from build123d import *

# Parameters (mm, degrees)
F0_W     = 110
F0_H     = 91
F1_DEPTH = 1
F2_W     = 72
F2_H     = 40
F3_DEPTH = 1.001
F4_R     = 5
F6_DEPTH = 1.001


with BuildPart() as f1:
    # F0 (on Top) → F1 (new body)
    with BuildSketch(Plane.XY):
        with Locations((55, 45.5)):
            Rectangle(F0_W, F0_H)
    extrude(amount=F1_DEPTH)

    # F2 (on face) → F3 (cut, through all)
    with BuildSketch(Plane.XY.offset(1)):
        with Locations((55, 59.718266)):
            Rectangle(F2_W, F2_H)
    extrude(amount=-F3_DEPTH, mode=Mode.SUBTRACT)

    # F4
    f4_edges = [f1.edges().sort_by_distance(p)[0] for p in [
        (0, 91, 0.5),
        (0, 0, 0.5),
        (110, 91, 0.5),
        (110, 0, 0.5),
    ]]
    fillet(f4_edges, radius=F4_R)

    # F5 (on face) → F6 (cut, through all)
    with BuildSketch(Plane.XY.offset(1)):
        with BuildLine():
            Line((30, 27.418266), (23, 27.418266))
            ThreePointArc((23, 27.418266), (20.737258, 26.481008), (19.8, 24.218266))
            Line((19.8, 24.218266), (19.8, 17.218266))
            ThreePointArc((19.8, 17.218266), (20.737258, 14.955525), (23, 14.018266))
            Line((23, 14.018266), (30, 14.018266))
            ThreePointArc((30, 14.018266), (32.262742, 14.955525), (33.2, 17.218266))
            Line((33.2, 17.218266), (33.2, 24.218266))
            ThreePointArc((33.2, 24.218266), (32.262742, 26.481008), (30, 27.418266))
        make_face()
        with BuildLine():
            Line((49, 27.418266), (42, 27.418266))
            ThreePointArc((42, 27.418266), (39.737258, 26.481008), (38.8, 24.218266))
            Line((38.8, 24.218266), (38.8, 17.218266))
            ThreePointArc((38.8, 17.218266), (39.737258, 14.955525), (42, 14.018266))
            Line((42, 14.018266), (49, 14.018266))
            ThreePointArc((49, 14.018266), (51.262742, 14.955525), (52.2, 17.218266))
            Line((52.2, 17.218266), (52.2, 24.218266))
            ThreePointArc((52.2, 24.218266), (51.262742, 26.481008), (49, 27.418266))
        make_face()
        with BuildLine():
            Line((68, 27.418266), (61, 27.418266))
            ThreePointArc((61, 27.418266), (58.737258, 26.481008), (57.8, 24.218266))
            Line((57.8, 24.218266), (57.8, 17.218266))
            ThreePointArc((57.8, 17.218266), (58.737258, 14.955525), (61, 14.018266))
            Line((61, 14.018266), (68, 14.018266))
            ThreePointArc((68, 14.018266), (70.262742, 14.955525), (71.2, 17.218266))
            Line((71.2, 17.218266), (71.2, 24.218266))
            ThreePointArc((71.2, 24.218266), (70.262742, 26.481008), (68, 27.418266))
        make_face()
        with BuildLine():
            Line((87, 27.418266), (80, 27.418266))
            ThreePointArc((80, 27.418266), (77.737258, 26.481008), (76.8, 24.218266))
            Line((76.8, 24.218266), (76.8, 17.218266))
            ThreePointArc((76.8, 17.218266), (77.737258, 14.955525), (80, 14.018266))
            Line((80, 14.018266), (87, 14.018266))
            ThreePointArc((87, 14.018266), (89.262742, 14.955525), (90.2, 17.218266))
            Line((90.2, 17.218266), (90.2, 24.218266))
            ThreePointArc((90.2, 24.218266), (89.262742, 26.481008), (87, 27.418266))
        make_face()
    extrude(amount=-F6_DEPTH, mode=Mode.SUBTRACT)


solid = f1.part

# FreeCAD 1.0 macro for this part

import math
import FreeCAD as App
import Part
import Sketcher


def edges_at(feature, points):
    """Names of the edges that pass closest to the given points."""
    edges = feature.Shape.Edges
    near = lambda p: min(range(len(edges)), key=lambda i: edges[i].distToShape(Part.Vertex(*p))[0])
    return sorted({f"Edge{near(p) + 1}" for p in points})

doc = App.newDocument("Part")
body = doc.addObject("PartDesign::Body", "Body")

sketch1 = body.newObject("Sketcher::SketchObject", "Sketch")
sketch1.AttachmentSupport = (doc.getObject("XY_Plane"), [""])
sketch1.MapMode = "FlatFace"
sketch1.addGeometry(Part.LineSegment(App.Vector(0, 91, 0), App.Vector(0, 0, 0)), False)
sketch1.addGeometry(Part.LineSegment(App.Vector(0, 0, 0), App.Vector(110, 0, 0)), False)
sketch1.addGeometry(Part.LineSegment(App.Vector(110, 0, 0), App.Vector(110, 91, 0)), False)
sketch1.addGeometry(Part.LineSegment(App.Vector(110, 91, 0), App.Vector(0, 91, 0)), False)
sketch1.addConstraint(Sketcher.Constraint("Coincident", 0, 2, 1, 1))
sketch1.addConstraint(Sketcher.Constraint("Coincident", 1, 2, 2, 1))
sketch1.addConstraint(Sketcher.Constraint("Coincident", 2, 2, 3, 1))
sketch1.addConstraint(Sketcher.Constraint("Coincident", 3, 2, 0, 1))
sketch1.addConstraint(Sketcher.Constraint("Vertical", 0))
sketch1.addConstraint(Sketcher.Constraint("Horizontal", 1))
sketch1.addConstraint(Sketcher.Constraint("Vertical", 2))
sketch1.addConstraint(Sketcher.Constraint("Horizontal", 3))
sketch1.addConstraint(Sketcher.Constraint("Coincident", 0, 2, -1, 1))
sketch1.addConstraint(Sketcher.Constraint("DistanceX", 1, 1, 1, 2, 110.0))
sketch1.addConstraint(Sketcher.Constraint("DistanceY", 0, 2, 0, 1, 91.0))
pad1 = body.newObject("PartDesign::Pad", "Pad")
pad1.Profile = sketch1
pad1.Length = 1

sketch2 = body.newObject("Sketcher::SketchObject", "Sketch001")
sketch2.AttachmentSupport = (doc.getObject("XY_Plane"), [""])
sketch2.MapMode = "FlatFace"
sketch2.AttachmentOffset = App.Placement(App.Vector(0, 0, 1), App.Rotation())
sketch2.addGeometry(Part.LineSegment(App.Vector(19, 80, 0), App.Vector(19, 40, 0)), False)
sketch2.addGeometry(Part.LineSegment(App.Vector(19, 40, 0), App.Vector(91, 40, 0)), False)
sketch2.addGeometry(Part.LineSegment(App.Vector(91, 40, 0), App.Vector(91, 80, 0)), False)
sketch2.addGeometry(Part.LineSegment(App.Vector(91, 80, 0), App.Vector(19, 80, 0)), False)
sketch2.addConstraint(Sketcher.Constraint("Coincident", 0, 2, 1, 1))
sketch2.addConstraint(Sketcher.Constraint("Coincident", 1, 2, 2, 1))
sketch2.addConstraint(Sketcher.Constraint("Coincident", 2, 2, 3, 1))
sketch2.addConstraint(Sketcher.Constraint("Coincident", 3, 2, 0, 1))
sketch2.addConstraint(Sketcher.Constraint("Vertical", 0))
sketch2.addConstraint(Sketcher.Constraint("Horizontal", 1))
sketch2.addConstraint(Sketcher.Constraint("Vertical", 2))
sketch2.addConstraint(Sketcher.Constraint("Horizontal", 3))
sketch2.addConstraint(Sketcher.Constraint("DistanceX", 1, 1, 1, 2, 72.0))
sketch2.addConstraint(Sketcher.Constraint("DistanceY", 0, 2, 0, 1, 40.0))
sketch2.addConstraint(Sketcher.Constraint("DistanceX", -1, 1, 0, 2, 19.0))
sketch2.addConstraint(Sketcher.Constraint("DistanceY", -1, 1, 0, 2, 39.718266))
pocket1 = body.newObject("PartDesign::Pocket", "Pocket")
pocket1.Profile = sketch2
pocket1.Type = "ThroughAll"
doc.recompute()

fillet = body.newObject("PartDesign::Fillet", "Fillet")
fillet.Base = (pocket1, edges_at(pocket1, [
    (0, 91, 0.5),
    (0, 0, 0.5),
    (110, 91, 0.5),
    (110, 0, 0.5),
]))
fillet.Radius = 5

sketch3 = body.newObject("Sketcher::SketchObject", "Sketch002")
sketch3.AttachmentSupport = (doc.getObject("XY_Plane"), [""])
sketch3.MapMode = "FlatFace"
sketch3.AttachmentOffset = App.Placement(App.Vector(0, 0, 1), App.Rotation())
sketch3.addGeometry(Part.LineSegment(App.Vector(30, 27.4, 0), App.Vector(23, 27.4, 0)), False)
sketch3.addGeometry(Part.ArcOfCircle(Part.Circle(App.Vector(23, 24.2, 0), App.Vector(0, 0, 1), 3.2), math.radians(90), math.radians(180)), False)
sketch3.addGeometry(Part.LineSegment(App.Vector(19.8, 24.2, 0), App.Vector(19.8, 17.2, 0)), False)
sketch3.addGeometry(Part.ArcOfCircle(Part.Circle(App.Vector(23, 17.2, 0), App.Vector(0, 0, 1), 3.2), math.radians(-180), math.radians(-90)), False)
sketch3.addGeometry(Part.LineSegment(App.Vector(23, 14, 0), App.Vector(30, 14, 0)), False)
sketch3.addGeometry(Part.ArcOfCircle(Part.Circle(App.Vector(30, 17.2, 0), App.Vector(0, 0, 1), 3.2), math.radians(-90), math.radians(0)), False)
sketch3.addGeometry(Part.LineSegment(App.Vector(33.2, 17.2, 0), App.Vector(33.2, 24.2, 0)), False)
sketch3.addGeometry(Part.ArcOfCircle(Part.Circle(App.Vector(30, 24.2, 0), App.Vector(0, 0, 1), 3.2), math.radians(0), math.radians(90)), False)
sketch3.addGeometry(Part.LineSegment(App.Vector(49, 27.4, 0), App.Vector(42, 27.4, 0)), False)
sketch3.addGeometry(Part.ArcOfCircle(Part.Circle(App.Vector(42, 24.2, 0), App.Vector(0, 0, 1), 3.2), math.radians(90), math.radians(180)), False)
sketch3.addGeometry(Part.LineSegment(App.Vector(38.8, 24.2, 0), App.Vector(38.8, 17.2, 0)), False)
sketch3.addGeometry(Part.ArcOfCircle(Part.Circle(App.Vector(42, 17.2, 0), App.Vector(0, 0, 1), 3.2), math.radians(-180), math.radians(-90)), False)
sketch3.addGeometry(Part.LineSegment(App.Vector(42, 14, 0), App.Vector(49, 14, 0)), False)
sketch3.addGeometry(Part.ArcOfCircle(Part.Circle(App.Vector(49, 17.2, 0), App.Vector(0, 0, 1), 3.2), math.radians(-90), math.radians(0)), False)
sketch3.addGeometry(Part.LineSegment(App.Vector(52.2, 17.2, 0), App.Vector(52.2, 24.2, 0)), False)
sketch3.addGeometry(Part.ArcOfCircle(Part.Circle(App.Vector(49, 24.2, 0), App.Vector(0, 0, 1), 3.2), math.radians(0), math.radians(90)), False)
sketch3.addGeometry(Part.LineSegment(App.Vector(68, 27.4, 0), App.Vector(61, 27.4, 0)), False)
sketch3.addGeometry(Part.ArcOfCircle(Part.Circle(App.Vector(61, 24.2, 0), App.Vector(0, 0, 1), 3.2), math.radians(90), math.radians(180)), False)
sketch3.addGeometry(Part.LineSegment(App.Vector(57.8, 24.2, 0), App.Vector(57.8, 17.2, 0)), False)
sketch3.addGeometry(Part.ArcOfCircle(Part.Circle(App.Vector(61, 17.2, 0), App.Vector(0, 0, 1), 3.2), math.radians(-180), math.radians(-90)), False)
sketch3.addGeometry(Part.LineSegment(App.Vector(61, 14, 0), App.Vector(68, 14, 0)), False)
sketch3.addGeometry(Part.ArcOfCircle(Part.Circle(App.Vector(68, 17.2, 0), App.Vector(0, 0, 1), 3.2), math.radians(-90), math.radians(0)), False)
sketch3.addGeometry(Part.LineSegment(App.Vector(71.2, 17.2, 0), App.Vector(71.2, 24.2, 0)), False)
sketch3.addGeometry(Part.ArcOfCircle(Part.Circle(App.Vector(68, 24.2, 0), App.Vector(0, 0, 1), 3.2), math.radians(0), math.radians(90)), False)
sketch3.addGeometry(Part.LineSegment(App.Vector(87, 27.4, 0), App.Vector(80, 27.4, 0)), False)
sketch3.addGeometry(Part.ArcOfCircle(Part.Circle(App.Vector(80, 24.2, 0), App.Vector(0, 0, 1), 3.2), math.radians(90), math.radians(180)), False)
sketch3.addGeometry(Part.LineSegment(App.Vector(76.8, 24.2, 0), App.Vector(76.8, 17.2, 0)), False)
sketch3.addGeometry(Part.ArcOfCircle(Part.Circle(App.Vector(80, 17.2, 0), App.Vector(0, 0, 1), 3.2), math.radians(-180), math.radians(-90)), False)
sketch3.addGeometry(Part.LineSegment(App.Vector(80, 14, 0), App.Vector(87, 14, 0)), False)
sketch3.addGeometry(Part.ArcOfCircle(Part.Circle(App.Vector(87, 17.2, 0), App.Vector(0, 0, 1), 3.2), math.radians(-90), math.radians(0)), False)
sketch3.addGeometry(Part.LineSegment(App.Vector(90.2, 17.2, 0), App.Vector(90.2, 24.2, 0)), False)
sketch3.addGeometry(Part.ArcOfCircle(Part.Circle(App.Vector(87, 24.2, 0), App.Vector(0, 0, 1), 3.2), math.radians(0), math.radians(90)), False)
sketch3.addConstraint(Sketcher.Constraint("Tangent", 0, 2, 1, 1))
sketch3.addConstraint(Sketcher.Constraint("Tangent", 1, 2, 2, 1))
sketch3.addConstraint(Sketcher.Constraint("Tangent", 2, 2, 3, 1))
sketch3.addConstraint(Sketcher.Constraint("Tangent", 3, 2, 4, 1))
sketch3.addConstraint(Sketcher.Constraint("Tangent", 4, 2, 5, 1))
sketch3.addConstraint(Sketcher.Constraint("Tangent", 5, 2, 6, 1))
sketch3.addConstraint(Sketcher.Constraint("Tangent", 6, 2, 7, 1))
sketch3.addConstraint(Sketcher.Constraint("Tangent", 7, 2, 0, 1))
sketch3.addConstraint(Sketcher.Constraint("Tangent", 8, 2, 9, 1))
sketch3.addConstraint(Sketcher.Constraint("Tangent", 9, 2, 10, 1))
sketch3.addConstraint(Sketcher.Constraint("Tangent", 10, 2, 11, 1))
sketch3.addConstraint(Sketcher.Constraint("Tangent", 11, 2, 12, 1))
sketch3.addConstraint(Sketcher.Constraint("Tangent", 12, 2, 13, 1))
sketch3.addConstraint(Sketcher.Constraint("Tangent", 13, 2, 14, 1))
sketch3.addConstraint(Sketcher.Constraint("Tangent", 14, 2, 15, 1))
sketch3.addConstraint(Sketcher.Constraint("Tangent", 15, 2, 8, 1))
sketch3.addConstraint(Sketcher.Constraint("Tangent", 16, 2, 17, 1))
sketch3.addConstraint(Sketcher.Constraint("Tangent", 17, 2, 18, 1))
sketch3.addConstraint(Sketcher.Constraint("Tangent", 18, 2, 19, 1))
sketch3.addConstraint(Sketcher.Constraint("Tangent", 19, 2, 20, 1))
sketch3.addConstraint(Sketcher.Constraint("Tangent", 20, 2, 21, 1))
sketch3.addConstraint(Sketcher.Constraint("Tangent", 21, 2, 22, 1))
sketch3.addConstraint(Sketcher.Constraint("Tangent", 22, 2, 23, 1))
sketch3.addConstraint(Sketcher.Constraint("Tangent", 23, 2, 16, 1))
sketch3.addConstraint(Sketcher.Constraint("Tangent", 24, 2, 25, 1))
sketch3.addConstraint(Sketcher.Constraint("Tangent", 25, 2, 26, 1))
sketch3.addConstraint(Sketcher.Constraint("Tangent", 26, 2, 27, 1))
sketch3.addConstraint(Sketcher.Constraint("Tangent", 27, 2, 28, 1))
sketch3.addConstraint(Sketcher.Constraint("Tangent", 28, 2, 29, 1))
sketch3.addConstraint(Sketcher.Constraint("Tangent", 29, 2, 30, 1))
sketch3.addConstraint(Sketcher.Constraint("Tangent", 30, 2, 31, 1))
sketch3.addConstraint(Sketcher.Constraint("Tangent", 31, 2, 24, 1))
sketch3.addConstraint(Sketcher.Constraint("Horizontal", 0))
sketch3.addConstraint(Sketcher.Constraint("Vertical", 2))
sketch3.addConstraint(Sketcher.Constraint("Horizontal", 4))
sketch3.addConstraint(Sketcher.Constraint("Vertical", 6))
sketch3.addConstraint(Sketcher.Constraint("Horizontal", 8))
sketch3.addConstraint(Sketcher.Constraint("Vertical", 10))
sketch3.addConstraint(Sketcher.Constraint("Horizontal", 12))
sketch3.addConstraint(Sketcher.Constraint("Vertical", 14))
sketch3.addConstraint(Sketcher.Constraint("Horizontal", 16))
sketch3.addConstraint(Sketcher.Constraint("Vertical", 18))
sketch3.addConstraint(Sketcher.Constraint("Horizontal", 20))
sketch3.addConstraint(Sketcher.Constraint("Vertical", 22))
sketch3.addConstraint(Sketcher.Constraint("Horizontal", 24))
sketch3.addConstraint(Sketcher.Constraint("Vertical", 26))
sketch3.addConstraint(Sketcher.Constraint("Horizontal", 28))
sketch3.addConstraint(Sketcher.Constraint("Vertical", 30))
sketch3.addConstraint(Sketcher.Constraint("Equal", 1, 3))
sketch3.addConstraint(Sketcher.Constraint("Equal", 3, 5))
sketch3.addConstraint(Sketcher.Constraint("Equal", 5, 7))
sketch3.addConstraint(Sketcher.Constraint("Equal", 7, 9))
sketch3.addConstraint(Sketcher.Constraint("Equal", 9, 11))
sketch3.addConstraint(Sketcher.Constraint("Equal", 11, 13))
sketch3.addConstraint(Sketcher.Constraint("Equal", 13, 15))
sketch3.addConstraint(Sketcher.Constraint("Equal", 15, 17))
sketch3.addConstraint(Sketcher.Constraint("Equal", 17, 19))
sketch3.addConstraint(Sketcher.Constraint("Equal", 19, 21))
sketch3.addConstraint(Sketcher.Constraint("Equal", 21, 23))
sketch3.addConstraint(Sketcher.Constraint("Equal", 23, 25))
sketch3.addConstraint(Sketcher.Constraint("Equal", 25, 27))
sketch3.addConstraint(Sketcher.Constraint("Equal", 27, 29))
sketch3.addConstraint(Sketcher.Constraint("Equal", 29, 31))
sketch3.addConstraint(Sketcher.Constraint("Horizontal", 7, 3, 9, 3))
sketch3.addConstraint(Sketcher.Constraint("Horizontal", 5, 3, 11, 3))
sketch3.addConstraint(Sketcher.Constraint("Horizontal", 15, 3, 17, 3))
sketch3.addConstraint(Sketcher.Constraint("Horizontal", 13, 3, 19, 3))
sketch3.addConstraint(Sketcher.Constraint("Horizontal", 23, 3, 25, 3))
sketch3.addConstraint(Sketcher.Constraint("Horizontal", 21, 3, 27, 3))
sketch3.addConstraint(Sketcher.Constraint("Equal", 4, 8))
sketch3.addConstraint(Sketcher.Constraint("Equal", 12, 16))
sketch3.addConstraint(Sketcher.Constraint("Equal", 20, 24))
sketch3.addConstraint(Sketcher.Constraint("Equal", 28, 2))
sketch3.addConstraint(Sketcher.Constraint("Radius", 1, 3.199999))
sketch3.addConstraint(Sketcher.Constraint("DistanceX", 0, 2, 0, 1, 7.0))
sketch3.addConstraint(Sketcher.Constraint("DistanceX", -1, 1, 1, 3, 22.999999))
sketch3.addConstraint(Sketcher.Constraint("DistanceX", -1, 1, 9, 3, 41.999999))
sketch3.addConstraint(Sketcher.Constraint("DistanceX", -1, 1, 17, 3, 60.999999))
sketch3.addConstraint(Sketcher.Constraint("DistanceX", -1, 1, 25, 3, 79.999999))
sketch3.addConstraint(Sketcher.Constraint("DistanceY", -1, 1, 1, 3, 24.218267))
pocket2 = body.newObject("PartDesign::Pocket", "Pocket001")
pocket2.Profile = sketch3
pocket2.Type = "ThroughAll"

doc.recompute()
